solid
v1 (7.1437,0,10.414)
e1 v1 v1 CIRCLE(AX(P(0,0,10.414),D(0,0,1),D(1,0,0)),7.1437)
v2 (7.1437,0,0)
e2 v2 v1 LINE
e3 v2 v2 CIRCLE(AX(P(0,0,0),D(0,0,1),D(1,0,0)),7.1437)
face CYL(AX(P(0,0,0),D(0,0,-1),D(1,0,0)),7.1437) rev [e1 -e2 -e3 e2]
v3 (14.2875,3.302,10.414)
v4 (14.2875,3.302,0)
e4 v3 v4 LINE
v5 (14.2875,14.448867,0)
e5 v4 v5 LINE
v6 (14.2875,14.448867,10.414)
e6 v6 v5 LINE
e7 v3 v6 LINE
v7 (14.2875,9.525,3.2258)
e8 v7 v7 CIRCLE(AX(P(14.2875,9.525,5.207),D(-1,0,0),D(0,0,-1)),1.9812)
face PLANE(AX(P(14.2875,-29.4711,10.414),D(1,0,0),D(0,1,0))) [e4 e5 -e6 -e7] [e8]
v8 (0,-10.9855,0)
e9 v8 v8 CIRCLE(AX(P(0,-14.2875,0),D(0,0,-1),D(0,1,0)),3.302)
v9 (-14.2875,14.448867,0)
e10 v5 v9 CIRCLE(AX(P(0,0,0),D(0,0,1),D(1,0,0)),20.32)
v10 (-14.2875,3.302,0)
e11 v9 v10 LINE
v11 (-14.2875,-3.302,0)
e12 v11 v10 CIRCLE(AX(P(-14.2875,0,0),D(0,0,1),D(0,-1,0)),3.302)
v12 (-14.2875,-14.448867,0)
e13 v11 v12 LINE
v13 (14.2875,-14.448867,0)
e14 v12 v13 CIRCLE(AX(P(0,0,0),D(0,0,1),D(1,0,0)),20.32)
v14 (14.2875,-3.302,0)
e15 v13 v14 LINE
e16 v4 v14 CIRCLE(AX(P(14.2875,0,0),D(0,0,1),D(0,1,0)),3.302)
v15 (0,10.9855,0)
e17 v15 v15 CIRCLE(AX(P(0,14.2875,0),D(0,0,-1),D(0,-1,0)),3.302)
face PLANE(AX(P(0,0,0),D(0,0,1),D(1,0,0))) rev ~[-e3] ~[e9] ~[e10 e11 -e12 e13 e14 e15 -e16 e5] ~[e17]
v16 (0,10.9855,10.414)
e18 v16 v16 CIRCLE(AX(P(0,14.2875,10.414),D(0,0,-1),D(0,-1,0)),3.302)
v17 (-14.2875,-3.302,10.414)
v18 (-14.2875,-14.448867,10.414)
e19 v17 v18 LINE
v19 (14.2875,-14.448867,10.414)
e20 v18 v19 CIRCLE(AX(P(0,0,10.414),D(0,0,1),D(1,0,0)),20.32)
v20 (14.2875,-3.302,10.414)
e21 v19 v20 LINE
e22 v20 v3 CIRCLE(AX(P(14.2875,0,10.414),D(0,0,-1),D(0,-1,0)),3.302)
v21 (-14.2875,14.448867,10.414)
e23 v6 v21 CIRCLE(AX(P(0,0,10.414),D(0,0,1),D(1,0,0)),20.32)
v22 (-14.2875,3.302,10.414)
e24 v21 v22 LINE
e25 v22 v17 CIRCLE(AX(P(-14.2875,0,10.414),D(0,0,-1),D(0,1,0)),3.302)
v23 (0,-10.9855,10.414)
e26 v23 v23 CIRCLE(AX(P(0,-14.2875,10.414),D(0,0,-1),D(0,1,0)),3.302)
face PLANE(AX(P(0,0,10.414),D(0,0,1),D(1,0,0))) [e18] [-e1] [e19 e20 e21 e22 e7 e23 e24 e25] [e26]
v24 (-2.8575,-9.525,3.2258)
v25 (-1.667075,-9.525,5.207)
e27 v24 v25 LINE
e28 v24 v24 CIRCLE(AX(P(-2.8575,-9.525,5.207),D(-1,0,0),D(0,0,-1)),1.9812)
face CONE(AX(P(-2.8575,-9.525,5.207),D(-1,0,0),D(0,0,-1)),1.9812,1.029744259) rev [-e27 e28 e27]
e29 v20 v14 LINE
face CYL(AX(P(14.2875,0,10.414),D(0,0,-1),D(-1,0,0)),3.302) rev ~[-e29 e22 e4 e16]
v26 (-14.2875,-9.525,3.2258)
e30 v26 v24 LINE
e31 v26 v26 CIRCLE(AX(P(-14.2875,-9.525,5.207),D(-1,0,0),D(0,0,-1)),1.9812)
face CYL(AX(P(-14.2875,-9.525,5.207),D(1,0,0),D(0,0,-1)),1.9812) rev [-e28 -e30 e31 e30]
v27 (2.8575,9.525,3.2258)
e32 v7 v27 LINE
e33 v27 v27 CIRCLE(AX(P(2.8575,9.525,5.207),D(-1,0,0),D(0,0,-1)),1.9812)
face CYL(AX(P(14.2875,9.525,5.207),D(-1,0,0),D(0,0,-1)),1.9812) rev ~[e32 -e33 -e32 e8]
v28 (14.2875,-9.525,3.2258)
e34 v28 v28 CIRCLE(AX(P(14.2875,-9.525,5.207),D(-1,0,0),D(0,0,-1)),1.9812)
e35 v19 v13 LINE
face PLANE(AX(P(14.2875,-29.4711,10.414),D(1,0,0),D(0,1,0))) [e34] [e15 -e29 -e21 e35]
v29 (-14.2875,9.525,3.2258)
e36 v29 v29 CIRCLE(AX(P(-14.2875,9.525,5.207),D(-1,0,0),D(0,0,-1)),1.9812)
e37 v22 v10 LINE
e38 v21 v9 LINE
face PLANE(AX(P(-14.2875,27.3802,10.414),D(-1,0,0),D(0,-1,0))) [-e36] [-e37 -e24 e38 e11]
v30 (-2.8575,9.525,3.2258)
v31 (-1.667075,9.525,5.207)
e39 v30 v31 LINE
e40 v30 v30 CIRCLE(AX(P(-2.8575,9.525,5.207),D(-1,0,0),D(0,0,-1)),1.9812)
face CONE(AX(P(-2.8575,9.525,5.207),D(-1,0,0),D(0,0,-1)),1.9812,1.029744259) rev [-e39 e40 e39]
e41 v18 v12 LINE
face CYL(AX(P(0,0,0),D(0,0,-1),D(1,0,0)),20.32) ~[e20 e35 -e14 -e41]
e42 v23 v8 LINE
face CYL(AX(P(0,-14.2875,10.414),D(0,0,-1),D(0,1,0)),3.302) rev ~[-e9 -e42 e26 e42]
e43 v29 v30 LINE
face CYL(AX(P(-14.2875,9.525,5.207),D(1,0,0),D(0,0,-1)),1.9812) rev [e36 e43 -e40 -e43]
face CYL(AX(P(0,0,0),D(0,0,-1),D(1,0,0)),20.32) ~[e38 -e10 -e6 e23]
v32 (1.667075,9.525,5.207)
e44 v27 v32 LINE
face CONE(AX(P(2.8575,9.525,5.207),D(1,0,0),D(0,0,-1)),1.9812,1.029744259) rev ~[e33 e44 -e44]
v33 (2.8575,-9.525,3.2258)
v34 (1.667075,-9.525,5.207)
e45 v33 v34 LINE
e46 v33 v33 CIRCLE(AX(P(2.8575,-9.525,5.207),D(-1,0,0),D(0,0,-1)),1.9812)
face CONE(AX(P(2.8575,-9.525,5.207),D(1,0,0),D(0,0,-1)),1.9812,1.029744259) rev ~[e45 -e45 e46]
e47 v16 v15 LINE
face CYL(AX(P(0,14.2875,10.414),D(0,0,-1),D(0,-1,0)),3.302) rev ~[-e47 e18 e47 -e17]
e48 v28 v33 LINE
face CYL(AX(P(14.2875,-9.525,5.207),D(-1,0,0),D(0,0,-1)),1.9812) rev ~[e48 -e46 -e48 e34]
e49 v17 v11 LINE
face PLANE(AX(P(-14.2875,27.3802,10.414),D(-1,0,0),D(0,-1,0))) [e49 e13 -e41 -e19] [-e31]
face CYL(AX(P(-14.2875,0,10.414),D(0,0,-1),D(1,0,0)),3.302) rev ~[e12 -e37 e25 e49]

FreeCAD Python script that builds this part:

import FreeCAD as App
import Part
import Sketcher

V = App.Vector
Q = App.Units.Quantity

doc = App.newDocument("Part")
params = doc.addObject("Spreadsheet::Sheet", "Params")
for row, (alias, value) in enumerate([
    ("sketch1_diameter", "1.6 in"),
    ("sketch1_diameter2", "0.5625 in"),
    ("pad1_length", "0.41 in"),
    ("sketch2_diameter", "0.26 in"),
    ("hole_diameter", "0.26 in"),
    ("hole_depth", "0.484 in"),
    ("sketch3_width", "1.125 in"),
    ("pocket1_length", "0.41 in"),
    ("sketch4_diameter", "0.156 in"),
    ("hole2_diameter", "0.156 in"),
    ("hole2_depth", "0.45 in"),
], start=1):
    params.set(f"A{row}", alias)
    params.set(f"B{row}", "=" + value)
    params.setAlias(f"B{row}", alias)

body = doc.addObject("PartDesign::Body", "Body")

# Sketch on XY plane
sketch1 = doc.addObject("Sketcher::SketchObject", "Sketch")
body.addObject(sketch1)
sketch1.AttachmentSupport = (doc.XY_Plane, [""])
sketch1.MapMode = "FlatFace"
sketch1.addGeometry(Part.Circle(V(0, 0, 0), V(0, 0, 1), 20), False)
sketch1.addGeometry(Part.Circle(V(0, 0, 0), V(0, 0, 1), 7), False)
sketch1.addConstraint(Sketcher.Constraint("Coincident", 0, 3, -1, 1))
sketch1.addConstraint(Sketcher.Constraint("Coincident", 1, 3, -1, 1))
sketch1.addConstraint(Sketcher.Constraint("Diameter", 0, Q("1.6 in")))
sketch1.addConstraint(Sketcher.Constraint("Diameter", 1, Q("0.5625 in")))
sketch1.setExpression("Constraints[2]", "Params.sketch1_diameter")
sketch1.setExpression("Constraints[3]", "Params.sketch1_diameter2")
pad1 = doc.addObject("PartDesign::Pad", "Pad")
body.addObject(pad1)
pad1.Profile = sketch1
pad1.setExpression("Length", "Params.pad1_length")

# Sketch on XY plane
sketch2 = doc.addObject("Sketcher::SketchObject", "Sketch001")
body.addObject(sketch2)
sketch2.AttachmentSupport = (doc.XY_Plane, [""])
sketch2.MapMode = "FlatFace"
sketch2.AttachmentOffset = App.Placement(V(0, 0, 0.41 * 25.4), App.Rotation())
sketch2.addGeometry(Part.Circle(V(0, 14.3, 0), V(0, 0, 1), 3.3), False)
sketch2.addConstraint(Sketcher.Constraint("PointOnObject", 0, 3, -2))
sketch2.addConstraint(Sketcher.Constraint("Diameter", 0, Q("0.26 in")))
sketch2.addConstraint(Sketcher.Constraint("DistanceY", -1, 1, 0, 3, Q("0.5625 in")))
sketch2.setExpression("Constraints[1]", "Params.sketch2_diameter")
doc.recompute()
hole = doc.addObject("PartDesign::Hole", "Hole")
body.addObject(hole)
hole.Profile = sketch2
hole.ThreadType = "None"
hole.setExpression("Diameter", "Params.hole_diameter")
hole.DepthType = "Dimension"
hole.setExpression("Depth", "Params.hole_depth")
hole.DrillPoint = "Angled"
hole.DrillPointAngle = 118
doc.recompute()

polarpattern = doc.addObject("PartDesign::PolarPattern", "PolarPattern")
body.addObject(polarpattern)
polarpattern.Originals = [hole]
polarpattern.Axis = (doc.Z_Axis, [""])
polarpattern.Angle = 360
polarpattern.Occurrences = 4
body.Tip = polarpattern

# Sketch on XY plane
sketch3 = doc.addObject("Sketcher::SketchObject", "Sketch002")
body.addObject(sketch3)
sketch3.AttachmentSupport = (doc.XY_Plane, [""])
sketch3.MapMode = "FlatFace"
sketch3.AttachmentOffset = App.Placement(V(0, 0, 0.41 * 25.4), App.Rotation())
sketch3.addGeometry(Part.LineSegment(V(-49, 57, 0), V(-49, -62, 0)), False)
sketch3.addGeometry(Part.LineSegment(V(-49, -62, 0), V(63, -62, 0)), False)
sketch3.addGeometry(Part.LineSegment(V(63, -62, 0), V(63, 57, 0)), False)
sketch3.addGeometry(Part.LineSegment(V(63, 57, 0), V(-49, 57, 0)), False)
sketch3.addGeometry(Part.LineSegment(V(14, -29, 0), V(-14, -29, 0)), False)
sketch3.addGeometry(Part.LineSegment(V(-14, -29, 0), V(-14, 27, 0)), False)
sketch3.addGeometry(Part.LineSegment(V(-14, 27, 0), V(14, 27, 0)), False)
sketch3.addGeometry(Part.LineSegment(V(14, 27, 0), V(14, -29, 0)), False)
sketch3.addConstraint(Sketcher.Constraint("Coincident", 0, 2, 1, 1))
sketch3.addConstraint(Sketcher.Constraint("Coincident", 1, 2, 2, 1))
sketch3.addConstraint(Sketcher.Constraint("Coincident", 2, 2, 3, 1))
sketch3.addConstraint(Sketcher.Constraint("Coincident", 3, 2, 0, 1))
sketch3.addConstraint(Sketcher.Constraint("Coincident", 4, 2, 5, 1))
sketch3.addConstraint(Sketcher.Constraint("Coincident", 5, 2, 6, 1))
sketch3.addConstraint(Sketcher.Constraint("Coincident", 6, 2, 7, 1))
sketch3.addConstraint(Sketcher.Constraint("Coincident", 7, 2, 4, 1))
sketch3.addConstraint(Sketcher.Constraint("Vertical", 0))
sketch3.addConstraint(Sketcher.Constraint("Horizontal", 1))
sketch3.addConstraint(Sketcher.Constraint("Vertical", 2))
sketch3.addConstraint(Sketcher.Constraint("Horizontal", 3))
sketch3.addConstraint(Sketcher.Constraint("Horizontal", 4))
sketch3.addConstraint(Sketcher.Constraint("Vertical", 5))
sketch3.addConstraint(Sketcher.Constraint("Horizontal", 6))
sketch3.addConstraint(Sketcher.Constraint("Vertical", 7))
sketch3.addConstraint(Sketcher.Constraint("DistanceX", 4, 2, 4, 1, Q("1.125 in")))
sketch3.addConstraint(Sketcher.Constraint("DistanceX", 4, 2, -1, 1, Q("0.5625 in")))
sketch3.addConstraint(Sketcher.Constraint("DistanceX", 1, 1, 1, 2, 112.364))
sketch3.addConstraint(Sketcher.Constraint("DistanceY", 0, 2, 0, 1, 119.7108))
sketch3.addConstraint(Sketcher.Constraint("DistanceY", 5, 1, 5, 2, 56.8513))
sketch3.addConstraint(Sketcher.Constraint("DistanceX", 0, 2, -1, 1, Q("1.9304 in")))
sketch3.addConstraint(Sketcher.Constraint("DistanceY", 0, 2, 5, 2, Q("3.5383 in")))
sketch3.addConstraint(Sketcher.Constraint("DistanceY", 0, 2, -1, 1, 62.493))
sketch3.setExpression("Constraints[16]", "Params.sketch3_width")
pocket1 = doc.addObject("PartDesign::Pocket", "Pocket")
body.addObject(pocket1)
pocket1.Profile = sketch3
pocket1.setExpression("Length", "Params.pocket1_length")

# Sketch on YZ plane
sketch4 = doc.addObject("Sketcher::SketchObject", "Sketch003")
body.addObject(sketch4)
sketch4.AttachmentSupport = (doc.YZ_Plane, [""])
sketch4.MapMode = "FlatFace"
sketch4.AttachmentOffset = App.Placement(V(0, 0, 0.5625 * 25.4), App.Rotation())
sketch4.addGeometry(Part.Circle(V(9.5, 5.2, 0), V(0, 0, 1), 2), False)
sketch4.addGeometry(Part.Circle(V(-9.5, 5.2, 0), V(0, 0, 1), 2), False)
sketch4.addConstraint(Sketcher.Constraint("Equal", 0, 1))
sketch4.addConstraint(Sketcher.Constraint("Symmetric", 0, 3, 1, 3, -2))
sketch4.addConstraint(Sketcher.Constraint("Diameter", 0, Q("0.156 in")))
sketch4.addConstraint(Sketcher.Constraint("DistanceX", 1, 3, 0, 3, Q("0.75 in")))
sketch4.addConstraint(Sketcher.Constraint("DistanceY", -1, 1, 0, 3, Q("0.205 in")))
sketch4.setExpression("Constraints[2]", "Params.sketch4_diameter")
doc.recompute()
hole2 = doc.addObject("PartDesign::Hole", "Hole001")
body.addObject(hole2)
hole2.Profile = sketch4
hole2.ThreadType = "None"
hole2.setExpression("Diameter", "Params.hole2_diameter")
hole2.DepthType = "Dimension"
hole2.setExpression("Depth", "Params.hole2_depth")
hole2.DrillPoint = "Angled"
hole2.DrillPointAngle = 118
doc.recompute()

mirrored = doc.addObject("PartDesign::Mirrored", "Mirrored")
body.addObject(mirrored)
mirrored.Originals = [hole2]
mirrored.MirrorPlane = (doc.YZ_Plane, [""])
body.Tip = mirrored

doc.recompute()
